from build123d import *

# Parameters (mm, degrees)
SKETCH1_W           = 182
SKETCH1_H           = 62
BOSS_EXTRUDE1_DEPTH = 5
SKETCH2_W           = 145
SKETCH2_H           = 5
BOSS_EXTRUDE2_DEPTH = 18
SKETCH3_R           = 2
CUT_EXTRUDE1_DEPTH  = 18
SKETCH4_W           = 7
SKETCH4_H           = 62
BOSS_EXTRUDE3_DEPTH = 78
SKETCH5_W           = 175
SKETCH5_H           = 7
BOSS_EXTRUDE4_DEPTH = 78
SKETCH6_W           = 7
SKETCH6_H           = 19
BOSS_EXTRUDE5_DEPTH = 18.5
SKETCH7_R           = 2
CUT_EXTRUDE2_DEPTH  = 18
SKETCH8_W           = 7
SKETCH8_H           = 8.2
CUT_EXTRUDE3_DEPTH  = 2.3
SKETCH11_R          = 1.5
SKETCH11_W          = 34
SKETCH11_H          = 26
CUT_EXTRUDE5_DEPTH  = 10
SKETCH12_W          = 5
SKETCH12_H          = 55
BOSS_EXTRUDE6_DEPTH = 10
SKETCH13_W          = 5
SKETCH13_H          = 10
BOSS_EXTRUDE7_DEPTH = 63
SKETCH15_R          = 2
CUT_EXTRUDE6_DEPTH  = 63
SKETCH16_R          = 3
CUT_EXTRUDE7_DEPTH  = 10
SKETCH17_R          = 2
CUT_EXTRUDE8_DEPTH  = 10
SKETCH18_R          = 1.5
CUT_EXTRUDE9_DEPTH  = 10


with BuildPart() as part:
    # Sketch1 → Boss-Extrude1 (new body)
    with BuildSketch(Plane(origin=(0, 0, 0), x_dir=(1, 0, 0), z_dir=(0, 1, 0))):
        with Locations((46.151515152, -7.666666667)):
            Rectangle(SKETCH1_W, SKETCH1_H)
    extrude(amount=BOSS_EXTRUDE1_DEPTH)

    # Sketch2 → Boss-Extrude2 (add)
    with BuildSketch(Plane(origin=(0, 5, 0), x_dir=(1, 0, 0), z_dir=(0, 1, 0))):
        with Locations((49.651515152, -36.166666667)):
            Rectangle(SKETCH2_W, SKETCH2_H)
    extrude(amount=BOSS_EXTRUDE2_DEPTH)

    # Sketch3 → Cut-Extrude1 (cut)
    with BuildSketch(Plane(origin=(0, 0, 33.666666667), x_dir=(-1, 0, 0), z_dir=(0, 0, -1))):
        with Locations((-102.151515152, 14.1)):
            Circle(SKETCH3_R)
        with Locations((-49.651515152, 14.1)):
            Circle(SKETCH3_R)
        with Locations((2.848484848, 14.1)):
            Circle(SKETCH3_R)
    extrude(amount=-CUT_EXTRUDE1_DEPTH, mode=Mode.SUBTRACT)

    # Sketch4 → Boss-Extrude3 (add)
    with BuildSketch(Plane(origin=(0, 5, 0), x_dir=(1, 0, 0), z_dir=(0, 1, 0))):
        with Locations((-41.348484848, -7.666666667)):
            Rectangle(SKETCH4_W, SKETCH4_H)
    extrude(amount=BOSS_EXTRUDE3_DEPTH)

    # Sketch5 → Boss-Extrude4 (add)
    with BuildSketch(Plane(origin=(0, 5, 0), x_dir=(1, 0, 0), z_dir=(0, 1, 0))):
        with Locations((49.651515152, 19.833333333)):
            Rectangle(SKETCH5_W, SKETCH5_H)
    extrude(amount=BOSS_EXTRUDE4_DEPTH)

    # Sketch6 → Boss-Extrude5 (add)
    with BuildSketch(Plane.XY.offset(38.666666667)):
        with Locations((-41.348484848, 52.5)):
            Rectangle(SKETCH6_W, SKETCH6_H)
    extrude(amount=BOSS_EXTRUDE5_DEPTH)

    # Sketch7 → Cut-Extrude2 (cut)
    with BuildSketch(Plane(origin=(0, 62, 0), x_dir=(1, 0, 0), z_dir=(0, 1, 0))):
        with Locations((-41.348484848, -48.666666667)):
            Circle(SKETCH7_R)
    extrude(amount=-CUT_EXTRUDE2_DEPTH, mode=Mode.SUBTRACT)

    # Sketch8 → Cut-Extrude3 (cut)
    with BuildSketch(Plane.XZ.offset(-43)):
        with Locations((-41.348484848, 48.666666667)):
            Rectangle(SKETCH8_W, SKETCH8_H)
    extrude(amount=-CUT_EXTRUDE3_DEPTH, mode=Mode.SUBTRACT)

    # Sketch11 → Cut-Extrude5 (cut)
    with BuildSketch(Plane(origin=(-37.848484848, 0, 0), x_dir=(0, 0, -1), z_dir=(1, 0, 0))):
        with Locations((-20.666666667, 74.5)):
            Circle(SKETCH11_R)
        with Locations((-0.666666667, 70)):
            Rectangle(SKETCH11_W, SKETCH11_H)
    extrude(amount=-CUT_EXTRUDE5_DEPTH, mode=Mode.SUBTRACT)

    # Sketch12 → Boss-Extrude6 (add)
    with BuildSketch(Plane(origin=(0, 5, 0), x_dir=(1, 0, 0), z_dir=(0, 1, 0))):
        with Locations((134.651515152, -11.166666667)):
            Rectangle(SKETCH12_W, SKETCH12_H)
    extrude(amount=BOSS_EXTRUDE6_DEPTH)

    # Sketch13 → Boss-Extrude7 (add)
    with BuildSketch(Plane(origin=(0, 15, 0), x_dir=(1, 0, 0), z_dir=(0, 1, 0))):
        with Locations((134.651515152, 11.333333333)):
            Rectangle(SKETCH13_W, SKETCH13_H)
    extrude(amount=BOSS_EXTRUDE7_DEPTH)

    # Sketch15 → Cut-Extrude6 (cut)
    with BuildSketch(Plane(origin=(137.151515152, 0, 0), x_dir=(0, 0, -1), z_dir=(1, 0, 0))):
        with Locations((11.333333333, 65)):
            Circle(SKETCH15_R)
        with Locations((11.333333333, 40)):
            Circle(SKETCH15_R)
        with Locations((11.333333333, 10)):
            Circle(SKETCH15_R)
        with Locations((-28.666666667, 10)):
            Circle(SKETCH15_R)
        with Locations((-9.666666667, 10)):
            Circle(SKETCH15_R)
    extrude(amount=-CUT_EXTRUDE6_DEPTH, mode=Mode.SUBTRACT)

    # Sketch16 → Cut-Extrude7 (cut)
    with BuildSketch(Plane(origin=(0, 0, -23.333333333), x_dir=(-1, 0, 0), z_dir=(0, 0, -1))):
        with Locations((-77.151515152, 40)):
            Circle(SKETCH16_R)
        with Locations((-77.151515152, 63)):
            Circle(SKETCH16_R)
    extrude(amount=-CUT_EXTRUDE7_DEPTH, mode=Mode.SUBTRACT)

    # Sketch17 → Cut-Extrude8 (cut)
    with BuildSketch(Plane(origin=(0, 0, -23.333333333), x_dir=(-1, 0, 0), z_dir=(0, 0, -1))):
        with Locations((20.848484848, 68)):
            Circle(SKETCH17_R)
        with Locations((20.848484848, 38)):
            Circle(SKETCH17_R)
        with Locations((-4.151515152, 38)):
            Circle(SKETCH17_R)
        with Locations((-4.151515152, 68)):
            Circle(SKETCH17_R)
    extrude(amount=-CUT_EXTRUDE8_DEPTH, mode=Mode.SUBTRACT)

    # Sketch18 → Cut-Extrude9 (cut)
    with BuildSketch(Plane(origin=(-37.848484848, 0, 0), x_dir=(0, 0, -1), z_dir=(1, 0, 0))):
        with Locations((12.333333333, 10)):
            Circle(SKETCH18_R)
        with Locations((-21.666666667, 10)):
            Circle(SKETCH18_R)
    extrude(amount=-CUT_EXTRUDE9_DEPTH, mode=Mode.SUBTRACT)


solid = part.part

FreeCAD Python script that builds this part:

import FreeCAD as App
import Part
import Sketcher

V = App.Vector


def add_polygon(sketch, points):
    """Adds a closed chain of lines whose ends are joined by coincident constraints."""
    first, n = sketch.GeometryCount, len(points)
    for a, b in zip(points, points[1:] + points[:1]):
        sketch.addGeometry(Part.LineSegment(App.Vector(*a, 0), App.Vector(*b, 0)), False)
    for i in range(n):
        sketch.addConstraint(Sketcher.Constraint("Coincident", first + i, 2, first + (i + 1) % n, 1))

doc = App.newDocument("Part")
body = doc.addObject("PartDesign::Body", "Body")

# Sketch on XZ plane
sketch1 = doc.addObject("Sketcher::SketchObject", "Sketch")
body.addObject(sketch1)
sketch1.AttachmentSupport = (doc.XZ_Plane, [""])
sketch1.MapMode = "FlatFace"
add_polygon(sketch1, [(-44.848485, -23.333333), (-44.848485, 38.666667), (137.151515, 38.666667), (137.151515, -23.333333)])  # lines 0-3
sketch1.addConstraint([
    Sketcher.Constraint("Vertical", 0),
    Sketcher.Constraint("Horizontal", 1),
    Sketcher.Constraint("Vertical", 2),
    Sketcher.Constraint("Horizontal", 3),
    Sketcher.Constraint("DistanceX", 1, 1, 1, 2, 182.0),
    Sketcher.Constraint("DistanceY", 0, 1, 0, 2, 62.0),
    Sketcher.Constraint("DistanceX", 0, 2, -1, 1, 44.848485),
    Sketcher.Constraint("DistanceY", -1, 1, 0, 2, 38.666667),
])
pad1 = doc.addObject("PartDesign::Pad", "Pad")
body.addObject(pad1)
pad1.Profile = sketch1
pad1.Length = 5
pad1.Reversed = True

# Sketch on XZ plane
sketch2 = doc.addObject("Sketcher::SketchObject", "Sketch001")
body.addObject(sketch2)
sketch2.AttachmentSupport = (doc.XZ_Plane, [""])
sketch2.MapMode = "FlatFace"
sketch2.AttachmentOffset = App.Placement(V(0, 0, -5), App.Rotation())
add_polygon(sketch2, [(-22.848485, 33.666667), (-22.848485, 38.666667), (122.151515, 38.666667), (122.151515, 33.666667)])  # lines 0-3
sketch2.addConstraint([
    Sketcher.Constraint("Vertical", 0),
    Sketcher.Constraint("Horizontal", 1),
    Sketcher.Constraint("Vertical", 2),
    Sketcher.Constraint("Horizontal", 3),
    Sketcher.Constraint("DistanceX", 1, 1, 1, 2, 145.0),
    Sketcher.Constraint("DistanceY", 0, 1, 0, 2, 5.0),
    Sketcher.Constraint("DistanceX", 0, 2, -1, 1, 22.848485),
    Sketcher.Constraint("DistanceY", -1, 1, 0, 2, 38.666667),
])
pad2 = doc.addObject("PartDesign::Pad", "Pad001")
body.addObject(pad2)
pad2.Profile = sketch2
pad2.Length = 18
pad2.Reversed = True

# Sketch on XY plane
sketch3 = doc.addObject("Sketcher::SketchObject", "Sketch002")
body.addObject(sketch3)
sketch3.AttachmentSupport = (doc.XY_Plane, [""])
sketch3.MapMode = "FlatFace"
sketch3.AttachmentOffset = App.Placement(V(0, 0, 33.666667), App.Rotation())
sketch3.addGeometry([
    Part.Circle(V(102.151515, 14.1, 0), V(0, 0, 1), 2),
    Part.Circle(V(49.651515, 14.1, 0), V(0, 0, 1), 2),
    Part.Circle(V(-2.848485, 14.1, 0), V(0, 0, 1), 2),
], False)
sketch3.addConstraint([
    Sketcher.Constraint("Equal", 0, 1),
    Sketcher.Constraint("Equal", 1, 2),
    Sketcher.Constraint("Horizontal", 0, 3, 1, 3),
    Sketcher.Constraint("Horizontal", 1, 3, 2, 3),
    Sketcher.Constraint("Diameter", 0, 4.0),
    Sketcher.Constraint("DistanceX", 2, 3, 0, 3, 105.0),
    Sketcher.Constraint("DistanceY", -1, 1, 0, 3, 14.1),
    Sketcher.Constraint("DistanceX", 1, 3, 0, 3, 52.5),
    Sketcher.Constraint("DistanceX", -1, 1, 0, 3, 102.151515),
])
pocket1 = doc.addObject("PartDesign::Pocket", "Pocket")
body.addObject(pocket1)
pocket1.Profile = sketch3
pocket1.Length = 18
pocket1.Reversed = True

# Sketch on XZ plane
sketch4 = doc.addObject("Sketcher::SketchObject", "Sketch003")
body.addObject(sketch4)
sketch4.AttachmentSupport = (doc.XZ_Plane, [""])
sketch4.MapMode = "FlatFace"
sketch4.AttachmentOffset = App.Placement(V(0, 0, -5), App.Rotation())
add_polygon(sketch4, [(-44.848485, -23.333333), (-44.848485, 38.666667), (-37.848485, 38.666667), (-37.848485, -23.333333)])  # lines 0-3
sketch4.addConstraint([
    Sketcher.Constraint("Vertical", 0),
    Sketcher.Constraint("Horizontal", 1),
    Sketcher.Constraint("Vertical", 2),
    Sketcher.Constraint("Horizontal", 3),
    Sketcher.Constraint("DistanceX", 1, 1, 1, 2, 7.0),
    Sketcher.Constraint("DistanceY", 0, 1, 0, 2, 62.0),
    Sketcher.Constraint("DistanceX", 0, 2, -1, 1, 44.848485),
    Sketcher.Constraint("DistanceY", -1, 1, 0, 2, 38.666667),
])
pad3 = doc.addObject("PartDesign::Pad", "Pad002")
body.addObject(pad3)
pad3.Profile = sketch4
pad3.Length = 78
pad3.Reversed = True

# Sketch on XZ plane
sketch5 = doc.addObject("Sketcher::SketchObject", "Sketch004")
body.addObject(sketch5)
sketch5.AttachmentSupport = (doc.XZ_Plane, [""])
sketch5.MapMode = "FlatFace"
sketch5.AttachmentOffset = App.Placement(V(0, 0, -5), App.Rotation())
add_polygon(sketch5, [(-37.848485, -23.333333), (-37.848485, -16.333333), (137.151515, -16.333333), (137.151515, -23.333333)])  # lines 0-3
sketch5.addConstraint([
    Sketcher.Constraint("Vertical", 0),
    Sketcher.Constraint("Horizontal", 1),
    Sketcher.Constraint("Vertical", 2),
    Sketcher.Constraint("Horizontal", 3),
    Sketcher.Constraint("DistanceX", 1, 1, 1, 2, 175.0),
    Sketcher.Constraint("DistanceY", 0, 1, 0, 2, 7.0),
    Sketcher.Constraint("DistanceX", 0, 2, -1, 1, 37.848485),
    Sketcher.Constraint("DistanceY", 0, 2, -1, 1, 16.333333),
])
pad4 = doc.addObject("PartDesign::Pad", "Pad003")
body.addObject(pad4)
pad4.Profile = sketch5
pad4.Length = 78
pad4.Reversed = True

# Sketch on XY plane
sketch6 = doc.addObject("Sketcher::SketchObject", "Sketch005")
body.addObject(sketch6)
sketch6.AttachmentSupport = (doc.XY_Plane, [""])
sketch6.MapMode = "FlatFace"
sketch6.AttachmentOffset = App.Placement(V(0, 0, 38.666667), App.Rotation())
add_polygon(sketch6, [(-44.848485, 62), (-44.848485, 43), (-37.848485, 43), (-37.848485, 62)])  # lines 0-3
sketch6.addConstraint([
    Sketcher.Constraint("Vertical", 0),
    Sketcher.Constraint("Horizontal", 1),
    Sketcher.Constraint("Vertical", 2),
    Sketcher.Constraint("Horizontal", 3),
    Sketcher.Constraint("DistanceX", 1, 1, 1, 2, 7.0),
    Sketcher.Constraint("DistanceY", 0, 2, 0, 1, 19.0),
    Sketcher.Constraint("DistanceY", -1, 1, 0, 2, 43.0),
    Sketcher.Constraint("DistanceX", 0, 2, -1, 1, 44.848485),
])
pad5 = doc.addObject("PartDesign::Pad", "Pad004")
body.addObject(pad5)
pad5.Profile = sketch6
pad5.Length = 18.5

# Sketch on XZ plane
sketch7 = doc.addObject("Sketcher::SketchObject", "Sketch006")
body.addObject(sketch7)
sketch7.AttachmentSupport = (doc.XZ_Plane, [""])
sketch7.MapMode = "FlatFace"
sketch7.AttachmentOffset = App.Placement(V(0, 0, -62), App.Rotation())
sketch7.addGeometry(Part.Circle(V(-41.348485, 48.666667, 0), V(0, 0, 1), 2), False)
sketch7.addConstraint([
    Sketcher.Constraint("Diameter", 0, 4.0),
    Sketcher.Constraint("DistanceX", 0, 3, -1, 1, 41.348485),
    Sketcher.Constraint("DistanceY", -1, 1, 0, 3, 48.666667),
])
pocket2 = doc.addObject("PartDesign::Pocket", "Pocket001")
body.addObject(pocket2)
pocket2.Profile = sketch7
pocket2.Length = 18
pocket2.Reversed = True

# Sketch on XZ plane
sketch8 = doc.addObject("Sketcher::SketchObject", "Sketch007")
body.addObject(sketch8)
sketch8.AttachmentSupport = (doc.XZ_Plane, [""])
sketch8.MapMode = "FlatFace"
sketch8.AttachmentOffset = App.Placement(V(0, 0, -43), App.Rotation())
add_polygon(sketch8, [(-44.848485, 52.766667), (-44.848485, 44.566667), (-37.848485, 44.566667), (-37.848485, 52.766667)])  # lines 0-3
sketch8.addConstraint([
    Sketcher.Constraint("Vertical", 0),
    Sketcher.Constraint("Horizontal", 1),
    Sketcher.Constraint("Vertical", 2),
    Sketcher.Constraint("Horizontal", 3),
    Sketcher.Constraint("DistanceX", 1, 1, 1, 2, 7.0),
    Sketcher.Constraint("DistanceY", 0, 2, 0, 1, 8.2),
    Sketcher.Constraint("DistanceX", 0, 2, -1, 1, 44.848485),
    Sketcher.Constraint("DistanceY", -1, 1, 0, 2, 44.566667),
])
pocket3 = doc.addObject("PartDesign::Pocket", "Pocket002")
body.addObject(pocket3)
pocket3.Profile = sketch8
pocket3.Length = 2.3

# Sketch on YZ plane
sketch9 = doc.addObject("Sketcher::SketchObject", "Sketch008")
body.addObject(sketch9)
sketch9.AttachmentSupport = (doc.YZ_Plane, [""])
sketch9.MapMode = "FlatFace"
sketch9.AttachmentOffset = App.Placement(V(0, 0, -37.848485), App.Rotation())
sketch9.addGeometry(Part.Circle(V(74.5, 20.666667, 0), V(0, 0, 1), 1.5), False)  # 0
add_polygon(sketch9, [(83, 17.666667), (57, 17.666667), (57, -16.333333), (83, -16.333333)])  # lines 1-4
sketch9.addConstraint([
    Sketcher.Constraint("Horizontal", 1),
    Sketcher.Constraint("Vertical", 2),
    Sketcher.Constraint("Horizontal", 3),
    Sketcher.Constraint("Vertical", 4),
    Sketcher.Constraint("Diameter", 0, 3.0),
    Sketcher.Constraint("DistanceX", 1, 2, 1, 1, 26.0),
    Sketcher.Constraint("DistanceY", 2, 2, 2, 1, 34.0),
    Sketcher.Constraint("DistanceX", -1, 1, 1, 2, 57.0),
    Sketcher.Constraint("DistanceY", 1, 2, 0, 3, 3.0),
    Sketcher.Constraint("DistanceX", -1, 1, 0, 3, 74.5),
    Sketcher.Constraint("DistanceY", -1, 1, 0, 3, 20.666667),
])
pocket4 = doc.addObject("PartDesign::Pocket", "Pocket003")
body.addObject(pocket4)
pocket4.Profile = sketch9
pocket4.Length = 10

# Sketch on XZ plane
sketch10 = doc.addObject("Sketcher::SketchObject", "Sketch009")
body.addObject(sketch10)
sketch10.AttachmentSupport = (doc.XZ_Plane, [""])
sketch10.MapMode = "FlatFace"
sketch10.AttachmentOffset = App.Placement(V(0, 0, -5), App.Rotation())
add_polygon(sketch10, [(132.151515, -16.333333), (132.151515, 38.666667), (137.151515, 38.666667), (137.151515, -16.333333)])  # lines 0-3
sketch10.addConstraint([
    Sketcher.Constraint("Vertical", 0),
    Sketcher.Constraint("Horizontal", 1),
    Sketcher.Constraint("Vertical", 2),
    Sketcher.Constraint("Horizontal", 3),
    Sketcher.Constraint("DistanceX", 1, 1, 1, 2, 5.0),
    Sketcher.Constraint("DistanceY", 0, 1, 0, 2, 55.0),
    Sketcher.Constraint("DistanceX", -1, 1, 0, 2, 132.151515),
    Sketcher.Constraint("DistanceY", -1, 1, 0, 2, 38.666667),
])
pad6 = doc.addObject("PartDesign::Pad", "Pad005")
body.addObject(pad6)
pad6.Profile = sketch10
pad6.Length = 10
pad6.Reversed = True

# Sketch on XZ plane
sketch11 = doc.addObject("Sketcher::SketchObject", "Sketch010")
body.addObject(sketch11)
sketch11.AttachmentSupport = (doc.XZ_Plane, [""])
sketch11.MapMode = "FlatFace"
sketch11.AttachmentOffset = App.Placement(V(0, 0, -15), App.Rotation())
add_polygon(sketch11, [(132.151515, -16.333333), (132.151515, -6.333333), (137.151515, -6.333333), (137.151515, -16.333333)])  # lines 0-3
sketch11.addConstraint([
    Sketcher.Constraint("Vertical", 0),
    Sketcher.Constraint("Horizontal", 1),
    Sketcher.Constraint("Vertical", 2),
    Sketcher.Constraint("Horizontal", 3),
    Sketcher.Constraint("DistanceX", 1, 1, 1, 2, 5.0),
    Sketcher.Constraint("DistanceY", 0, 1, 0, 2, 10.0),
    Sketcher.Constraint("DistanceX", -1, 1, 0, 2, 132.151515),
    Sketcher.Constraint("DistanceY", 0, 2, -1, 1, 6.333333),
])
pad7 = doc.addObject("PartDesign::Pad", "Pad006")
body.addObject(pad7)
pad7.Profile = sketch11
pad7.Length = 63
pad7.Reversed = True

# Sketch on YZ plane
sketch12 = doc.addObject("Sketcher::SketchObject", "Sketch011")
body.addObject(sketch12)
sketch12.AttachmentSupport = (doc.YZ_Plane, [""])
sketch12.MapMode = "FlatFace"
sketch12.AttachmentOffset = App.Placement(V(0, 0, 137.151515), App.Rotation())
sketch12.addGeometry([
    Part.Circle(V(65, -11.333333, 0), V(0, 0, 1), 2),  # 0
    Part.Circle(V(40, -11.333333, 0), V(0, 0, 1), 2),  # 1
    Part.Circle(V(10, -11.333333, 0), V(0, 0, 1), 2),  # 2
    Part.Circle(V(10, 28.666667, 0), V(0, 0, 1), 2),  # 3
    Part.Circle(V(10, 9.666667, 0), V(0, 0, 1), 2),  # 4
], False)
sketch12.addConstraint([
    Sketcher.Constraint("Equal", 0, 1),
    Sketcher.Constraint("Equal", 1, 2),
    Sketcher.Constraint("Equal", 2, 3),
    Sketcher.Constraint("Equal", 3, 4),
    Sketcher.Constraint("Horizontal", 0, 3, 1, 3),
    Sketcher.Constraint("Horizontal", 1, 3, 2, 3),
    Sketcher.Constraint("Vertical", 2, 3, 3, 3),
    Sketcher.Constraint("Vertical", 3, 3, 4, 3),
    Sketcher.Constraint("Diameter", 0, 4.0),
    Sketcher.Constraint("DistanceX", -1, 1, 0, 3, 65.0),
    Sketcher.Constraint("DistanceX", -1, 1, 1, 3, 40.0),
    Sketcher.Constraint("DistanceX", -1, 1, 2, 3, 10.0),
    Sketcher.Constraint("DistanceY", 2, 3, 3, 3, 40.0),
    Sketcher.Constraint("DistanceY", 4, 3, 3, 3, 19.0),
    Sketcher.Constraint("DistanceY", 0, 3, -1, 1, 11.333333),
])
pocket5 = doc.addObject("PartDesign::Pocket", "Pocket004")
body.addObject(pocket5)
pocket5.Profile = sketch12
pocket5.Length = 63

# Sketch on XY plane
sketch13 = doc.addObject("Sketcher::SketchObject", "Sketch012")
body.addObject(sketch13)
sketch13.AttachmentSupport = (doc.XY_Plane, [""])
sketch13.MapMode = "FlatFace"
sketch13.AttachmentOffset = App.Placement(V(0, 0, -23.333333), App.Rotation())
sketch13.addGeometry([
    Part.Circle(V(77.151515, 40, 0), V(0, 0, 1), 3),
    Part.Circle(V(77.151515, 63, 0), V(0, 0, 1), 3),
], False)
sketch13.addConstraint([
    Sketcher.Constraint("Equal", 0, 1),
    Sketcher.Constraint("Vertical", 0, 3, 1, 3),
    Sketcher.Constraint("Diameter", 0, 6.0),
    Sketcher.Constraint("DistanceY", -1, 1, 0, 3, 40.0),
    Sketcher.Constraint("DistanceY", -1, 1, 1, 3, 63.0),
    Sketcher.Constraint("DistanceX", -1, 1, 0, 3, 77.151515),
])
pocket6 = doc.addObject("PartDesign::Pocket", "Pocket005")
body.addObject(pocket6)
pocket6.Profile = sketch13
pocket6.Length = 10
pocket6.Reversed = True

# Sketch on XY plane
sketch14 = doc.addObject("Sketcher::SketchObject", "Sketch013")
body.addObject(sketch14)
sketch14.AttachmentSupport = (doc.XY_Plane, [""])
sketch14.MapMode = "FlatFace"
sketch14.AttachmentOffset = App.Placement(V(0, 0, -23.333333), App.Rotation())
sketch14.addGeometry([
    Part.Circle(V(-20.848485, 68, 0), V(0, 0, 1), 2),
    Part.Circle(V(-20.848485, 38, 0), V(0, 0, 1), 2),
    Part.Circle(V(4.151515, 38, 0), V(0, 0, 1), 2),
    Part.Circle(V(4.151515, 68, 0), V(0, 0, 1), 2),
], False)
sketch14.addConstraint([
    Sketcher.Constraint("Equal", 0, 1),
    Sketcher.Constraint("Equal", 1, 2),
    Sketcher.Constraint("Equal", 2, 3),
    Sketcher.Constraint("Horizontal", 1, 3, 2, 3),
    Sketcher.Constraint("Horizontal", 0, 3, 3, 3),
    Sketcher.Constraint("Vertical", 0, 3, 1, 3),
    Sketcher.Constraint("Vertical", 2, 3, 3, 3),
    Sketcher.Constraint("Diameter", 0, 4.0),
    Sketcher.Constraint("DistanceY", -1, 1, 0, 3, 68.0),
    Sketcher.Constraint("DistanceY", -1, 1, 1, 3, 38.0),
    Sketcher.Constraint("DistanceX", 1, 3, 2, 3, 25.0),
    Sketcher.Constraint("DistanceX", 0, 3, -1, 1, 20.848485),
])
pocket7 = doc.addObject("PartDesign::Pocket", "Pocket006")
body.addObject(pocket7)
pocket7.Profile = sketch14
pocket7.Length = 10
pocket7.Reversed = True

# Sketch on YZ plane
sketch15 = doc.addObject("Sketcher::SketchObject", "Sketch014")
body.addObject(sketch15)
sketch15.AttachmentSupport = (doc.YZ_Plane, [""])
sketch15.MapMode = "FlatFace"
sketch15.AttachmentOffset = App.Placement(V(0, 0, -37.848485), App.Rotation())
sketch15.addGeometry([
    Part.Circle(V(10, -12.333333, 0), V(0, 0, 1), 1.5),
    Part.Circle(V(10, 21.666667, 0), V(0, 0, 1), 1.5),
], False)
sketch15.addConstraint([
    Sketcher.Constraint("Equal", 0, 1),
    Sketcher.Constraint("Vertical", 0, 3, 1, 3),
    Sketcher.Constraint("Diameter", 0, 3.0),
    Sketcher.Constraint("DistanceX", -1, 1, 0, 3, 10.0),
    Sketcher.Constraint("DistanceY", 0, 3, 1, 3, 34.0),
    Sketcher.Constraint("DistanceY", 0, 3, -1, 1, 12.333333),
])
pocket8 = doc.addObject("PartDesign::Pocket", "Pocket007")
body.addObject(pocket8)
pocket8.Profile = sketch15
pocket8.Length = 10

doc.recompute()
